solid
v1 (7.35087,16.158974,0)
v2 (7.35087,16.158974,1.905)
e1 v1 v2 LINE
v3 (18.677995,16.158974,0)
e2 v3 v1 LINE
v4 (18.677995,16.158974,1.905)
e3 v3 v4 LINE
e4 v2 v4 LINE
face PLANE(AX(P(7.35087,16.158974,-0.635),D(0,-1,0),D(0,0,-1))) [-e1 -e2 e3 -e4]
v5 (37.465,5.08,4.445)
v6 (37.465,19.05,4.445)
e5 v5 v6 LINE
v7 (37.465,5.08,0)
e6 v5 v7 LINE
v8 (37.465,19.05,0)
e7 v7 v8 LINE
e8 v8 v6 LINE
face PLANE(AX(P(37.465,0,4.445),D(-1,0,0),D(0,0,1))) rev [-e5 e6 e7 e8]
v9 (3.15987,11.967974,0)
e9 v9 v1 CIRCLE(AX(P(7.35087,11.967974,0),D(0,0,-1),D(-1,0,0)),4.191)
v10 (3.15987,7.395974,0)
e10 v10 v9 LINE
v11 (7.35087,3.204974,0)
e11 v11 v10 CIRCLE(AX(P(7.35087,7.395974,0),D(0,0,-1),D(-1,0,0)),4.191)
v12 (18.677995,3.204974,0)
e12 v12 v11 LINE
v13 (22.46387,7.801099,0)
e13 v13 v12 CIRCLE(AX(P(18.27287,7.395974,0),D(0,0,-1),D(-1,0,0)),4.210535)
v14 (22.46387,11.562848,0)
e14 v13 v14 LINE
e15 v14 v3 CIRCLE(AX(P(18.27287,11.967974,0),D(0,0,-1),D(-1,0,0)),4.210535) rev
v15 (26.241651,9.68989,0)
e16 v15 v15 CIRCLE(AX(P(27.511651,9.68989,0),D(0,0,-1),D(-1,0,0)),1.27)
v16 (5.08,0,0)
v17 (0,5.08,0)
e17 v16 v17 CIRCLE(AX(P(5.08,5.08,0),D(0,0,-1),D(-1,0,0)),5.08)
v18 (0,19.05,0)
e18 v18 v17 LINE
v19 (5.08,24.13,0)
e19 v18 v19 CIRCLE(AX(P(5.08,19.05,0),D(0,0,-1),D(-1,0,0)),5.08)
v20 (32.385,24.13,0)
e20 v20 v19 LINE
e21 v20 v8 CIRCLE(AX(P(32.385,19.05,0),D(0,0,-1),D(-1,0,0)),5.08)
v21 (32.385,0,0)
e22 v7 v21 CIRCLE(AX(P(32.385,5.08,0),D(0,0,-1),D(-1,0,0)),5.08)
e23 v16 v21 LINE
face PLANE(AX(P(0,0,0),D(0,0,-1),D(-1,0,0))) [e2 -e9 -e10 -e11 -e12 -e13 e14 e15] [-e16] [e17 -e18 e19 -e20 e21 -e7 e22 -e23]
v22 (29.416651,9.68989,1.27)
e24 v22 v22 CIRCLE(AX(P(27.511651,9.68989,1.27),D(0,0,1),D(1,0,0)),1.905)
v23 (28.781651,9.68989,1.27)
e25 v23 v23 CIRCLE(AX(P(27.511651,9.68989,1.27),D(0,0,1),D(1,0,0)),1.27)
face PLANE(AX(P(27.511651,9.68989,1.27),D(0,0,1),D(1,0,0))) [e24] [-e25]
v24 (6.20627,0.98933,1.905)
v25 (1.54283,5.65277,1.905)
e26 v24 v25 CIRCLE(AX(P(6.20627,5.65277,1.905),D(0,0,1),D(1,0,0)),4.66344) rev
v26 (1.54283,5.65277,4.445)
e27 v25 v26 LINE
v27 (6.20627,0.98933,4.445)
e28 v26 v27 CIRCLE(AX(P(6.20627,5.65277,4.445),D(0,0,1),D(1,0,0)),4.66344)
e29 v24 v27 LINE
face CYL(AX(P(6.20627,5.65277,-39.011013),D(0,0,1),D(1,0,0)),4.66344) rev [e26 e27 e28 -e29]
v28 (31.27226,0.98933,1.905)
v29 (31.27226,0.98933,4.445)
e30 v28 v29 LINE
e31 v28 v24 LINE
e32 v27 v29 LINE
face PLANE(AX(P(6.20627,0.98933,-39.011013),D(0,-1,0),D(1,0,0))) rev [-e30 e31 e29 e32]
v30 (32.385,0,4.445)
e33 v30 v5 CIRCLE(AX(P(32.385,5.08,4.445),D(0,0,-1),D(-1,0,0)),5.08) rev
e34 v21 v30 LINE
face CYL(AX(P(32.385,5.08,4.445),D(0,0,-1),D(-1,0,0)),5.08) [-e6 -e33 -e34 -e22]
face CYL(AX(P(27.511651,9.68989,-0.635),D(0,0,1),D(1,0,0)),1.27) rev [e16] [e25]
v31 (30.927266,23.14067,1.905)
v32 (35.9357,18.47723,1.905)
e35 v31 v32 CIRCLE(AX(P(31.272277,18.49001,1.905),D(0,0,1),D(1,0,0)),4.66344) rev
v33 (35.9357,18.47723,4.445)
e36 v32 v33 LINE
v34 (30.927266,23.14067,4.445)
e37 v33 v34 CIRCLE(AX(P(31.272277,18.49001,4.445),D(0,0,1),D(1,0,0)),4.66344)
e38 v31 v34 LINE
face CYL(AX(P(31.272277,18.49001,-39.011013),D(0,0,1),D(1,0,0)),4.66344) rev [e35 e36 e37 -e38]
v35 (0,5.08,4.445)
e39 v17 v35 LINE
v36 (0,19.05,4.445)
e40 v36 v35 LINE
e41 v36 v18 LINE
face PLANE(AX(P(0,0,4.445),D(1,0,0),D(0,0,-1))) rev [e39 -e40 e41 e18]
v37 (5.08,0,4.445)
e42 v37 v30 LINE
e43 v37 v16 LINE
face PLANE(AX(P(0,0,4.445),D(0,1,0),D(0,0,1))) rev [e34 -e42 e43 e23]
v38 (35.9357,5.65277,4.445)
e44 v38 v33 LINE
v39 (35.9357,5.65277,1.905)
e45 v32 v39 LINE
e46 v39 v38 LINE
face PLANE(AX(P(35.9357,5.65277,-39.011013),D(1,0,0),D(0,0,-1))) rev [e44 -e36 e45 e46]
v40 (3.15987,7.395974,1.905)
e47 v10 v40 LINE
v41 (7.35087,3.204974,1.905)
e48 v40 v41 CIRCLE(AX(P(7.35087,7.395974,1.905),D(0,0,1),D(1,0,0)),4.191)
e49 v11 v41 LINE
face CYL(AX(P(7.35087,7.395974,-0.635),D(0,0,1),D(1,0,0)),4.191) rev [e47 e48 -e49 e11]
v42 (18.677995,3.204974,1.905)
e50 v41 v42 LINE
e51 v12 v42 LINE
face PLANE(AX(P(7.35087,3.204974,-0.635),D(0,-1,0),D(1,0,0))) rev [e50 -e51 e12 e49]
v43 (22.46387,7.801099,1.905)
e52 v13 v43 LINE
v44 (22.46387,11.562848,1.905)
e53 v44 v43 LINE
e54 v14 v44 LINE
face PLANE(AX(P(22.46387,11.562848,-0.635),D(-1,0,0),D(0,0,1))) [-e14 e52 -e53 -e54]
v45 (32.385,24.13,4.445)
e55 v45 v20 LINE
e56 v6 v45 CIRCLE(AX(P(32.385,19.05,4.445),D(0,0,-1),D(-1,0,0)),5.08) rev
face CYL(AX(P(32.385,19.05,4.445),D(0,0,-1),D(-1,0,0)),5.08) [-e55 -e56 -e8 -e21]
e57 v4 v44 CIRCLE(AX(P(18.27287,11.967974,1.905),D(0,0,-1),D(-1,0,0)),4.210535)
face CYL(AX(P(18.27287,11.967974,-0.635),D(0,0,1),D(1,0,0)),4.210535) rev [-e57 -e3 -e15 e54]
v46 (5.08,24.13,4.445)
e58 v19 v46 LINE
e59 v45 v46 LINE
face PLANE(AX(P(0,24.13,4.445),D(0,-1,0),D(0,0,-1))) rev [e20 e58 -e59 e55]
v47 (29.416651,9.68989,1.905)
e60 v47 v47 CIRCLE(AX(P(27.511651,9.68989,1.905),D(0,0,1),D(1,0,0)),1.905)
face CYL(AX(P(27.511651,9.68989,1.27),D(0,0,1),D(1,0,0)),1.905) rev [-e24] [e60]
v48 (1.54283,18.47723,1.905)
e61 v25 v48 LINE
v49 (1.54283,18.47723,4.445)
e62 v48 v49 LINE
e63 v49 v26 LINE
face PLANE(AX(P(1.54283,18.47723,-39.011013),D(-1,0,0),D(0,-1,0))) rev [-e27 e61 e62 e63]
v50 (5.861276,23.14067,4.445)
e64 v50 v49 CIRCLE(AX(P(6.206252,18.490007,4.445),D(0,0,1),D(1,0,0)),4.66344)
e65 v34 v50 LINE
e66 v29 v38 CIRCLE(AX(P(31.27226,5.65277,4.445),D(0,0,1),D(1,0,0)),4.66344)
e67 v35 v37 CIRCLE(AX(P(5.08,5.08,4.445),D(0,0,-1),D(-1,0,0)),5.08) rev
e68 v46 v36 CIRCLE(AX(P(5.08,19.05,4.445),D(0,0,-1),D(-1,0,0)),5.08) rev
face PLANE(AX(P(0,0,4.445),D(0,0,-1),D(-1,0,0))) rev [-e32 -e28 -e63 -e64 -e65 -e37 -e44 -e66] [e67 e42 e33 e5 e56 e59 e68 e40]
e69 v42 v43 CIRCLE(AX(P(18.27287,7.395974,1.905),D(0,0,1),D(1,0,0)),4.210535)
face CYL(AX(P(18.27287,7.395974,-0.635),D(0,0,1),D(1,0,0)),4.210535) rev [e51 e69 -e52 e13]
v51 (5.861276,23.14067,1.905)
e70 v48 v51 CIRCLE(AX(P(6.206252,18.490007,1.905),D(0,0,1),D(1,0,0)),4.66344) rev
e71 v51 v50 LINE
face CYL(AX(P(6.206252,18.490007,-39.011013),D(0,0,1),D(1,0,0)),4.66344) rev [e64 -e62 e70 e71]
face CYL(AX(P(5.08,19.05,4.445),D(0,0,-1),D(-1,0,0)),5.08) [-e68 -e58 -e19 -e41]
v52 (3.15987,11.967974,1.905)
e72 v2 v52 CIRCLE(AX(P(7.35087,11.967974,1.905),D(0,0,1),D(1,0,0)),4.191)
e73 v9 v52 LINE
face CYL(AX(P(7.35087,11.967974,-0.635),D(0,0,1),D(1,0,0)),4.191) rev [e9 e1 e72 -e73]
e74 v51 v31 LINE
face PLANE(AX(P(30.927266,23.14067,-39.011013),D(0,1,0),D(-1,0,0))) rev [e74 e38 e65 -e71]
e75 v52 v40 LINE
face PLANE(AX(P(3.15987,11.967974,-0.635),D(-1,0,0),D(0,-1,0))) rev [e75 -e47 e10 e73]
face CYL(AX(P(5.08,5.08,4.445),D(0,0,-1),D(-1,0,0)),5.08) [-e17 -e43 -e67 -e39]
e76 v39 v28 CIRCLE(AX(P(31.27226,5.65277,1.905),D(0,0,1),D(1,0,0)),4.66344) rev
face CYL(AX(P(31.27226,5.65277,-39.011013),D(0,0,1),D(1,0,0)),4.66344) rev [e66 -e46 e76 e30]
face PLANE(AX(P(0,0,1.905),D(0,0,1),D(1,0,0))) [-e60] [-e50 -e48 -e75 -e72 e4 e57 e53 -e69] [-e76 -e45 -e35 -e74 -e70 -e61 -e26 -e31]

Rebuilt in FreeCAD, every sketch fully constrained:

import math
import FreeCAD as App
import Part
import Sketcher
from FreeCAD import Vector
Q = App.Units.Quantity


def edges_at(feature, points):
    """Names of the edges that pass closest to the given points."""
    edges = feature.Shape.Edges
    near = lambda p: min(range(len(edges)), key=lambda i: edges[i].distToShape(Part.Vertex(*p))[0])
    return sorted({f"Edge{near(p) + 1}" for p in points})

doc = App.newDocument("Part")
body = doc.addObject("PartDesign::Body", "Body")

sketch1 = body.newObject("Sketcher::SketchObject", "Sketch")
sketch1.AttachmentSupport = (doc.getObject("XY_Plane"), [""])
sketch1.MapMode = "FlatFace"
sketch1.addGeometry([
    Part.LineSegment(Vector(0, 24.13, 0), Vector(0, 0, 0)),
    Part.LineSegment(Vector(0, 0, 0), Vector(37.465, 0, 0)),
    Part.LineSegment(Vector(37.465, 0, 0), Vector(37.465, 24.13, 0)),
    Part.LineSegment(Vector(37.465, 24.13, 0), Vector(0, 24.13, 0)),
], False)
sketch1.addConstraint([
    Sketcher.Constraint("Coincident", 0, 2, 1, 1),
    Sketcher.Constraint("Coincident", 1, 2, 2, 1),
    Sketcher.Constraint("Coincident", 2, 2, 3, 1),
    Sketcher.Constraint("Coincident", 3, 2, 0, 1),
    Sketcher.Constraint("Vertical", 0),
    Sketcher.Constraint("Horizontal", 1),
    Sketcher.Constraint("Vertical", 2),
    Sketcher.Constraint("Horizontal", 3),
    Sketcher.Constraint("Coincident", 0, 2, -1, 1),
    Sketcher.Constraint("DistanceY", 0, 2, 0, 1, Q("0.95 in")),
    Sketcher.Constraint("DistanceX", 1, 1, 1, 2, Q("1.475 in")),
])
pad1 = body.newObject("PartDesign::Pad", "Pad")
pad1.Profile = sketch1
pad1.Length = Q("0.175 in")

sketch2 = body.newObject("Sketcher::SketchObject", "Sketch001")
sketch2.AttachmentSupport = (doc.getObject("XY_Plane"), [""])
sketch2.MapMode = "FlatFace"
sketch2.AttachmentOffset = App.Placement(Vector(0, 0, 0.175 * 25.4), App.Rotation())
sketch2.addGeometry([
    Part.LineSegment(Vector(35.59175, 5.7785, 0), Vector(35.59175, 18.3515, 0)),
    Part.ArcOfCircle(Part.Circle(Vector(31.019767, 18.364029, 0), Vector(0, 0, 1), 4.572), math.radians(-0.157015), math.radians(94.242734)),
    Part.LineSegment(Vector(30.681521, 22.9235, 0), Vector(6.107021, 22.9235, 0)),
    Part.ArcOfCircle(Part.Circle(Vector(6.445233, 18.364027, 0), Vector(0, 0, 1), 4.572), math.radians(94.242302), math.radians(180.156983)),
    Part.LineSegment(Vector(1.87325, 18.3515, 0), Vector(1.87325, 5.7785, 0)),
    Part.ArcOfCircle(Part.Circle(Vector(6.44525, 5.7785, 0), Vector(0, 0, 1), 4.572), math.radians(180), math.radians(270)),
    Part.LineSegment(Vector(6.44525, 1.2065, 0), Vector(31.01975, 1.2065, 0)),
    Part.ArcOfCircle(Part.Circle(Vector(31.01975, 5.7785, 0), Vector(0, 0, 1), 4.572), math.radians(-90), math.radians(0)),
], False)
sketch2.addConstraint([
    Sketcher.Constraint("Coincident", 0, 2, 1, 1),
    Sketcher.Constraint("Coincident", 1, 2, 2, 1),
    Sketcher.Constraint("Coincident", 2, 2, 3, 1),
    Sketcher.Constraint("Coincident", 3, 2, 4, 1),
    Sketcher.Constraint("Tangent", 4, 2, 5, 1),
    Sketcher.Constraint("Tangent", 5, 2, 6, 1),
    Sketcher.Constraint("Tangent", 6, 2, 7, 1),
    Sketcher.Constraint("Tangent", 7, 2, 0, 1),
    Sketcher.Constraint("Vertical", 0),
    Sketcher.Constraint("Horizontal", 2),
    Sketcher.Constraint("Vertical", 4),
    Sketcher.Constraint("Horizontal", 6),
    Sketcher.Constraint("Equal", 1, 3),
    Sketcher.Constraint("Equal", 3, 5),
    Sketcher.Constraint("Equal", 5, 7),
    Sketcher.Constraint("Horizontal", 0, 2, 3, 2),
    Sketcher.Constraint("Equal", 2, 6),
    Sketcher.Constraint("Radius", 1, Q("0.18 in")),
    Sketcher.Constraint("DistanceY", 0, 1, 0, 2, Q("0.495 in")),
    Sketcher.Constraint("DistanceY", 0, 2, 1, 2, Q("0.18 in")),
    Sketcher.Constraint("DistanceX", 2, 2, 2, 1, Q("0.9675 in")),
    Sketcher.Constraint("DistanceY", -1, 1, 5, 3, Q("0.2275 in")),
    Sketcher.Constraint("DistanceY", -1, 1, 1, 3, 18.364029),
    Sketcher.Constraint("DistanceX", -1, 1, 5, 3, 6.44525),
])
pocket1 = body.newObject("PartDesign::Pocket", "Pocket")
pocket1.Profile = sketch2
pocket1.Length = Q("0.1 in")
doc.recompute()

fillet = body.newObject("PartDesign::Fillet", "Fillet")
fillet.Base = (pocket1, edges_at(pocket1, [
    (0, 24.13, 2.223),
    (37.465, 24.13, 2.223),
    (37.465, 0, 2.223),
    (0, 0, 2.223),
]))
fillet.Radius = Q("0.2 in")

sketch3 = body.newObject("Sketcher::SketchObject", "Sketch002")
sketch3.AttachmentSupport = (doc.getObject("XY_Plane"), [""])
sketch3.MapMode = "FlatFace"
sketch3.AttachmentOffset = App.Placement(Vector(0, 0, 0.075 * 25.4), App.Rotation())
sketch3.addGeometry([
    Part.LineSegment(Vector(18.677995, 16.158974, 0), Vector(7.35087, 16.158974, 0)),
    Part.ArcOfCircle(Part.Circle(Vector(7.35087, 11.967974, 0), Vector(0, 0, 1), 4.191), math.radians(90), math.radians(180)),
    Part.LineSegment(Vector(3.15987, 11.967974, 0), Vector(3.15987, 7.395974, 0)),
    Part.ArcOfCircle(Part.Circle(Vector(7.35087, 7.395974, 0), Vector(0, 0, 1), 4.191), math.radians(180), math.radians(270)),
    Part.LineSegment(Vector(7.35087, 3.204974, 0), Vector(18.677995, 3.204974, 0)),
    Part.ArcOfCircle(Part.Circle(Vector(18.27287, 7.395974, 0), Vector(0, 0, 1), 4.210535), math.radians(-84.478622), math.radians(5.521378)),
    Part.LineSegment(Vector(22.46387, 7.801099, 0), Vector(22.46387, 11.562848, 0)),
    Part.ArcOfCircle(Part.Circle(Vector(18.27287, 11.967974, 0), Vector(0, 0, 1), 4.210535), math.radians(-5.521378), math.radians(84.478622)),
], False)
sketch3.addConstraint([
    Sketcher.Constraint("Tangent", 0, 2, 1, 1),
    Sketcher.Constraint("Tangent", 1, 2, 2, 1),
    Sketcher.Constraint("Tangent", 2, 2, 3, 1),
    Sketcher.Constraint("Tangent", 3, 2, 4, 1),
    Sketcher.Constraint("Coincident", 4, 2, 5, 1),
    Sketcher.Constraint("Coincident", 5, 2, 6, 1),
    Sketcher.Constraint("Coincident", 6, 2, 7, 1),
    Sketcher.Constraint("Coincident", 7, 2, 0, 1),
    Sketcher.Constraint("Horizontal", 0),
    Sketcher.Constraint("Vertical", 2),
    Sketcher.Constraint("Horizontal", 4),
    Sketcher.Constraint("Vertical", 6),
    Sketcher.Constraint("Equal", 1, 3),
    Sketcher.Constraint("Equal", 5, 7),
    Sketcher.Constraint("Horizontal", 3, 3, 5, 3),
    Sketcher.Constraint("Horizontal", 1, 3, 7, 3),
    Sketcher.Constraint("Vertical", 5, 3, 7, 3),
    Sketcher.Constraint("Radius", 1, Q("0.165 in")),
    Sketcher.Constraint("DistanceY", 2, 2, 2, 1, Q("0.18 in")),
    Sketcher.Constraint("DistanceX", 3, 3, 5, 3, Q("0.43 in")),
    Sketcher.Constraint("DistanceX", 5, 3, 5, 2, Q("0.165 in")),
    Sketcher.Constraint("Radius", 5, 4.210535),
    Sketcher.Constraint("DistanceY", -1, 1, 5, 2, 7.801099),
    Sketcher.Constraint("DistanceX", -1, 1, 1, 3, 7.35087),
])
pocket2 = body.newObject("PartDesign::Pocket", "Pocket001")
pocket2.Profile = sketch3
pocket2.Length = Q("0.1 in")

sketch4 = body.newObject("Sketcher::SketchObject", "Sketch003")
sketch4.AttachmentSupport = (doc.getObject("XY_Plane"), [""])
sketch4.MapMode = "FlatFace"
sketch4.AttachmentOffset = App.Placement(Vector(0, 0, 0.075 * 25.4), App.Rotation())
sketch4.addGeometry(Part.Circle(Vector(27.511651, 9.68989, 0), Vector(0, 0, 1), 1.27), False)
sketch4.addConstraint([
    Sketcher.Constraint("Diameter", 0, Q("0.1 in")),
    Sketcher.Constraint("DistanceX", -1, 1, 0, 3, 27.511651),
    Sketcher.Constraint("DistanceY", -1, 1, 0, 3, 9.68989),
])
pocket3 = body.newObject("PartDesign::Pocket", "Pocket002")
pocket3.Profile = sketch4
pocket3.Length = Q("0.1 in")

sketch5 = body.newObject("Sketcher::SketchObject", "Sketch004")
sketch5.AttachmentSupport = (doc.getObject("XY_Plane"), [""])
sketch5.MapMode = "FlatFace"
sketch5.AttachmentOffset = App.Placement(Vector(0, 0, 0.075 * 25.4), App.Rotation())
sketch5.addGeometry([
    Part.Circle(Vector(27.511651, 9.68989, 0), Vector(0, 0, 1), 1.905),
    Part.Circle(Vector(27.511651, 9.68989, 0), Vector(0, 0, 1), 1.27),
], False)
sketch5.addConstraint([
    Sketcher.Constraint("Coincident", 1, 3, 0, 3),
    Sketcher.Constraint("Diameter", 1, Q("0.1 in")),
    Sketcher.Constraint("Diameter", 0, Q("0.15 in")),
    Sketcher.Constraint("DistanceX", -1, 1, 0, 3, 27.511651),
    Sketcher.Constraint("DistanceY", -1, 1, 0, 3, 9.68989),
])
pocket4 = body.newObject("PartDesign::Pocket", "Pocket003")
pocket4.Profile = sketch5
pocket4.Length = Q("0.025 in")

sketch6 = body.newObject("Sketcher::SketchObject", "Sketch005")
sketch6.AttachmentSupport = (doc.getObject("XY_Plane"), [""])
sketch6.MapMode = "FlatFace"
sketch6.AttachmentOffset = App.Placement(Vector(0, 0, 0.175 * 25.4), App.Rotation())
sketch6.addGeometry([
    Part.LineSegment(Vector(1.54283, 18.47723, 0), Vector(1.54283, 5.65277, 0)),
    Part.ArcOfCircle(Part.Circle(Vector(6.20627, 5.65277, 0), Vector(0, 0, 1), 4.66344), math.radians(180), math.radians(270)),
    Part.LineSegment(Vector(6.20627, 0.98933, 0), Vector(31.27226, 0.98933, 0)),
    Part.ArcOfCircle(Part.Circle(Vector(31.27226, 5.65277, 0), Vector(0, 0, 1), 4.66344), math.radians(-90), math.radians(0)),
    Part.LineSegment(Vector(35.9357, 5.65277, 0), Vector(35.9357, 18.47723, 0)),
    Part.ArcOfCircle(Part.Circle(Vector(31.272277, 18.49001, 0), Vector(0, 0, 1), 4.66344), math.radians(-0.157015), math.radians(94.242734)),
    Part.LineSegment(Vector(30.927266, 23.14067, 0), Vector(5.861276, 23.14067, 0)),
    Part.ArcOfCircle(Part.Circle(Vector(6.206252, 18.490007, 0), Vector(0, 0, 1), 4.66344), math.radians(94.242302), math.radians(180.156983)),
    Part.LineSegment(Vector(31.01975, 1.2065, 0), Vector(6.44525, 1.2065, 0)),
    Part.ArcOfCircle(Part.Circle(Vector(6.44525, 5.7785, 0), Vector(0, 0, 1), 4.572), math.radians(180), math.radians(270)),
    Part.LineSegment(Vector(1.87325, 5.7785, 0), Vector(1.87325, 18.3515, 0)),
    Part.ArcOfCircle(Part.Circle(Vector(6.445233, 18.364027, 0), Vector(0, 0, 1), 4.572), math.radians(94.242302), math.radians(180.156983)),
    Part.LineSegment(Vector(6.107021, 22.9235, 0), Vector(30.681521, 22.9235, 0)),
    Part.ArcOfCircle(Part.Circle(Vector(31.019767, 18.364029, 0), Vector(0, 0, 1), 4.572), math.radians(-0.157015), math.radians(94.242734)),
    Part.LineSegment(Vector(35.59175, 18.3515, 0), Vector(35.59175, 5.7785, 0)),
    Part.ArcOfCircle(Part.Circle(Vector(31.01975, 5.7785, 0), Vector(0, 0, 1), 4.572), math.radians(-90), math.radians(0)),
], False)
sketch6.addConstraint([
    Sketcher.Constraint("Tangent", 0, 2, 1, 1),
    Sketcher.Constraint("Tangent", 1, 2, 2, 1),
    Sketcher.Constraint("Tangent", 2, 2, 3, 1),
    Sketcher.Constraint("Tangent", 3, 2, 4, 1),
    Sketcher.Constraint("Coincident", 4, 2, 5, 1),
    Sketcher.Constraint("Coincident", 5, 2, 6, 1),
    Sketcher.Constraint("Coincident", 6, 2, 7, 1),
    Sketcher.Constraint("Coincident", 7, 2, 0, 1),
    Sketcher.Constraint("Tangent", 8, 2, 9, 2),
    Sketcher.Constraint("Tangent", 9, 1, 10, 1),
    Sketcher.Constraint("Coincident", 10, 2, 11, 2),
    Sketcher.Constraint("Coincident", 11, 1, 12, 1),
    Sketcher.Constraint("Coincident", 12, 2, 13, 2),
    Sketcher.Constraint("Coincident", 13, 1, 14, 1),
    Sketcher.Constraint("Tangent", 14, 2, 15, 2),
    Sketcher.Constraint("Tangent", 15, 1, 8, 1),
    Sketcher.Constraint("Vertical", 0),
    Sketcher.Constraint("Horizontal", 2),
    Sketcher.Constraint("Vertical", 4),
    Sketcher.Constraint("Horizontal", 6),
    Sketcher.Constraint("Horizontal", 8),
    Sketcher.Constraint("Vertical", 10),
    Sketcher.Constraint("Horizontal", 12),
    Sketcher.Constraint("Vertical", 14),
    Sketcher.Constraint("Equal", 1, 3),
    Sketcher.Constraint("Equal", 3, 5),
    Sketcher.Constraint("Equal", 5, 7),
    Sketcher.Constraint("Equal", 9, 11),
    Sketcher.Constraint("Equal", 11, 13),
    Sketcher.Constraint("Equal", 13, 15),
    Sketcher.Constraint("Horizontal", 4, 2, 7, 2),
    Sketcher.Constraint("Horizontal", 10, 2, 13, 1),
    Sketcher.Constraint("Equal", 2, 6),
    Sketcher.Constraint("Equal", 8, 12),
    Sketcher.Constraint("Radius", 9, Q("0.18 in")),
    Sketcher.Constraint("Radius", 1, Q("0.1836 in")),
    Sketcher.Constraint("DistanceY", 10, 1, 10, 2, Q("0.495 in")),
    Sketcher.Constraint("DistanceY", 10, 2, 11, 1, Q("0.18 in")),
    Sketcher.Constraint("DistanceX", 8, 2, 8, 1, Q("0.9675 in")),
    Sketcher.Constraint("DistanceY", 0, 2, 0, 1, Q("0.5049 in")),
    Sketcher.Constraint("DistanceY", -1, 1, 9, 3, Q("0.2275 in")),
    Sketcher.Constraint("DistanceY", 4, 2, 5, 2, Q("0.1836 in")),
    Sketcher.Constraint("DistanceX", 2, 1, 2, 2, 25.06599),
    Sketcher.Constraint("DistanceX", -1, 1, 3, 2, 35.9357),
    Sketcher.Constraint("DistanceY", 2, 2, 13, 3, 17.374699),
    Sketcher.Constraint("DistanceX", 5, 2, 13, 3, 0.092501),
    Sketcher.Constraint("DistanceY", -1, 1, 1, 3, 5.65277),
    Sketcher.Constraint("DistanceY", -1, 1, 5, 3, 18.49001),
])
pocket5 = body.newObject("PartDesign::Pocket", "Pocket004")
pocket5.Profile = sketch6
pocket5.Length = Q("0.1 in")

doc.recompute()
